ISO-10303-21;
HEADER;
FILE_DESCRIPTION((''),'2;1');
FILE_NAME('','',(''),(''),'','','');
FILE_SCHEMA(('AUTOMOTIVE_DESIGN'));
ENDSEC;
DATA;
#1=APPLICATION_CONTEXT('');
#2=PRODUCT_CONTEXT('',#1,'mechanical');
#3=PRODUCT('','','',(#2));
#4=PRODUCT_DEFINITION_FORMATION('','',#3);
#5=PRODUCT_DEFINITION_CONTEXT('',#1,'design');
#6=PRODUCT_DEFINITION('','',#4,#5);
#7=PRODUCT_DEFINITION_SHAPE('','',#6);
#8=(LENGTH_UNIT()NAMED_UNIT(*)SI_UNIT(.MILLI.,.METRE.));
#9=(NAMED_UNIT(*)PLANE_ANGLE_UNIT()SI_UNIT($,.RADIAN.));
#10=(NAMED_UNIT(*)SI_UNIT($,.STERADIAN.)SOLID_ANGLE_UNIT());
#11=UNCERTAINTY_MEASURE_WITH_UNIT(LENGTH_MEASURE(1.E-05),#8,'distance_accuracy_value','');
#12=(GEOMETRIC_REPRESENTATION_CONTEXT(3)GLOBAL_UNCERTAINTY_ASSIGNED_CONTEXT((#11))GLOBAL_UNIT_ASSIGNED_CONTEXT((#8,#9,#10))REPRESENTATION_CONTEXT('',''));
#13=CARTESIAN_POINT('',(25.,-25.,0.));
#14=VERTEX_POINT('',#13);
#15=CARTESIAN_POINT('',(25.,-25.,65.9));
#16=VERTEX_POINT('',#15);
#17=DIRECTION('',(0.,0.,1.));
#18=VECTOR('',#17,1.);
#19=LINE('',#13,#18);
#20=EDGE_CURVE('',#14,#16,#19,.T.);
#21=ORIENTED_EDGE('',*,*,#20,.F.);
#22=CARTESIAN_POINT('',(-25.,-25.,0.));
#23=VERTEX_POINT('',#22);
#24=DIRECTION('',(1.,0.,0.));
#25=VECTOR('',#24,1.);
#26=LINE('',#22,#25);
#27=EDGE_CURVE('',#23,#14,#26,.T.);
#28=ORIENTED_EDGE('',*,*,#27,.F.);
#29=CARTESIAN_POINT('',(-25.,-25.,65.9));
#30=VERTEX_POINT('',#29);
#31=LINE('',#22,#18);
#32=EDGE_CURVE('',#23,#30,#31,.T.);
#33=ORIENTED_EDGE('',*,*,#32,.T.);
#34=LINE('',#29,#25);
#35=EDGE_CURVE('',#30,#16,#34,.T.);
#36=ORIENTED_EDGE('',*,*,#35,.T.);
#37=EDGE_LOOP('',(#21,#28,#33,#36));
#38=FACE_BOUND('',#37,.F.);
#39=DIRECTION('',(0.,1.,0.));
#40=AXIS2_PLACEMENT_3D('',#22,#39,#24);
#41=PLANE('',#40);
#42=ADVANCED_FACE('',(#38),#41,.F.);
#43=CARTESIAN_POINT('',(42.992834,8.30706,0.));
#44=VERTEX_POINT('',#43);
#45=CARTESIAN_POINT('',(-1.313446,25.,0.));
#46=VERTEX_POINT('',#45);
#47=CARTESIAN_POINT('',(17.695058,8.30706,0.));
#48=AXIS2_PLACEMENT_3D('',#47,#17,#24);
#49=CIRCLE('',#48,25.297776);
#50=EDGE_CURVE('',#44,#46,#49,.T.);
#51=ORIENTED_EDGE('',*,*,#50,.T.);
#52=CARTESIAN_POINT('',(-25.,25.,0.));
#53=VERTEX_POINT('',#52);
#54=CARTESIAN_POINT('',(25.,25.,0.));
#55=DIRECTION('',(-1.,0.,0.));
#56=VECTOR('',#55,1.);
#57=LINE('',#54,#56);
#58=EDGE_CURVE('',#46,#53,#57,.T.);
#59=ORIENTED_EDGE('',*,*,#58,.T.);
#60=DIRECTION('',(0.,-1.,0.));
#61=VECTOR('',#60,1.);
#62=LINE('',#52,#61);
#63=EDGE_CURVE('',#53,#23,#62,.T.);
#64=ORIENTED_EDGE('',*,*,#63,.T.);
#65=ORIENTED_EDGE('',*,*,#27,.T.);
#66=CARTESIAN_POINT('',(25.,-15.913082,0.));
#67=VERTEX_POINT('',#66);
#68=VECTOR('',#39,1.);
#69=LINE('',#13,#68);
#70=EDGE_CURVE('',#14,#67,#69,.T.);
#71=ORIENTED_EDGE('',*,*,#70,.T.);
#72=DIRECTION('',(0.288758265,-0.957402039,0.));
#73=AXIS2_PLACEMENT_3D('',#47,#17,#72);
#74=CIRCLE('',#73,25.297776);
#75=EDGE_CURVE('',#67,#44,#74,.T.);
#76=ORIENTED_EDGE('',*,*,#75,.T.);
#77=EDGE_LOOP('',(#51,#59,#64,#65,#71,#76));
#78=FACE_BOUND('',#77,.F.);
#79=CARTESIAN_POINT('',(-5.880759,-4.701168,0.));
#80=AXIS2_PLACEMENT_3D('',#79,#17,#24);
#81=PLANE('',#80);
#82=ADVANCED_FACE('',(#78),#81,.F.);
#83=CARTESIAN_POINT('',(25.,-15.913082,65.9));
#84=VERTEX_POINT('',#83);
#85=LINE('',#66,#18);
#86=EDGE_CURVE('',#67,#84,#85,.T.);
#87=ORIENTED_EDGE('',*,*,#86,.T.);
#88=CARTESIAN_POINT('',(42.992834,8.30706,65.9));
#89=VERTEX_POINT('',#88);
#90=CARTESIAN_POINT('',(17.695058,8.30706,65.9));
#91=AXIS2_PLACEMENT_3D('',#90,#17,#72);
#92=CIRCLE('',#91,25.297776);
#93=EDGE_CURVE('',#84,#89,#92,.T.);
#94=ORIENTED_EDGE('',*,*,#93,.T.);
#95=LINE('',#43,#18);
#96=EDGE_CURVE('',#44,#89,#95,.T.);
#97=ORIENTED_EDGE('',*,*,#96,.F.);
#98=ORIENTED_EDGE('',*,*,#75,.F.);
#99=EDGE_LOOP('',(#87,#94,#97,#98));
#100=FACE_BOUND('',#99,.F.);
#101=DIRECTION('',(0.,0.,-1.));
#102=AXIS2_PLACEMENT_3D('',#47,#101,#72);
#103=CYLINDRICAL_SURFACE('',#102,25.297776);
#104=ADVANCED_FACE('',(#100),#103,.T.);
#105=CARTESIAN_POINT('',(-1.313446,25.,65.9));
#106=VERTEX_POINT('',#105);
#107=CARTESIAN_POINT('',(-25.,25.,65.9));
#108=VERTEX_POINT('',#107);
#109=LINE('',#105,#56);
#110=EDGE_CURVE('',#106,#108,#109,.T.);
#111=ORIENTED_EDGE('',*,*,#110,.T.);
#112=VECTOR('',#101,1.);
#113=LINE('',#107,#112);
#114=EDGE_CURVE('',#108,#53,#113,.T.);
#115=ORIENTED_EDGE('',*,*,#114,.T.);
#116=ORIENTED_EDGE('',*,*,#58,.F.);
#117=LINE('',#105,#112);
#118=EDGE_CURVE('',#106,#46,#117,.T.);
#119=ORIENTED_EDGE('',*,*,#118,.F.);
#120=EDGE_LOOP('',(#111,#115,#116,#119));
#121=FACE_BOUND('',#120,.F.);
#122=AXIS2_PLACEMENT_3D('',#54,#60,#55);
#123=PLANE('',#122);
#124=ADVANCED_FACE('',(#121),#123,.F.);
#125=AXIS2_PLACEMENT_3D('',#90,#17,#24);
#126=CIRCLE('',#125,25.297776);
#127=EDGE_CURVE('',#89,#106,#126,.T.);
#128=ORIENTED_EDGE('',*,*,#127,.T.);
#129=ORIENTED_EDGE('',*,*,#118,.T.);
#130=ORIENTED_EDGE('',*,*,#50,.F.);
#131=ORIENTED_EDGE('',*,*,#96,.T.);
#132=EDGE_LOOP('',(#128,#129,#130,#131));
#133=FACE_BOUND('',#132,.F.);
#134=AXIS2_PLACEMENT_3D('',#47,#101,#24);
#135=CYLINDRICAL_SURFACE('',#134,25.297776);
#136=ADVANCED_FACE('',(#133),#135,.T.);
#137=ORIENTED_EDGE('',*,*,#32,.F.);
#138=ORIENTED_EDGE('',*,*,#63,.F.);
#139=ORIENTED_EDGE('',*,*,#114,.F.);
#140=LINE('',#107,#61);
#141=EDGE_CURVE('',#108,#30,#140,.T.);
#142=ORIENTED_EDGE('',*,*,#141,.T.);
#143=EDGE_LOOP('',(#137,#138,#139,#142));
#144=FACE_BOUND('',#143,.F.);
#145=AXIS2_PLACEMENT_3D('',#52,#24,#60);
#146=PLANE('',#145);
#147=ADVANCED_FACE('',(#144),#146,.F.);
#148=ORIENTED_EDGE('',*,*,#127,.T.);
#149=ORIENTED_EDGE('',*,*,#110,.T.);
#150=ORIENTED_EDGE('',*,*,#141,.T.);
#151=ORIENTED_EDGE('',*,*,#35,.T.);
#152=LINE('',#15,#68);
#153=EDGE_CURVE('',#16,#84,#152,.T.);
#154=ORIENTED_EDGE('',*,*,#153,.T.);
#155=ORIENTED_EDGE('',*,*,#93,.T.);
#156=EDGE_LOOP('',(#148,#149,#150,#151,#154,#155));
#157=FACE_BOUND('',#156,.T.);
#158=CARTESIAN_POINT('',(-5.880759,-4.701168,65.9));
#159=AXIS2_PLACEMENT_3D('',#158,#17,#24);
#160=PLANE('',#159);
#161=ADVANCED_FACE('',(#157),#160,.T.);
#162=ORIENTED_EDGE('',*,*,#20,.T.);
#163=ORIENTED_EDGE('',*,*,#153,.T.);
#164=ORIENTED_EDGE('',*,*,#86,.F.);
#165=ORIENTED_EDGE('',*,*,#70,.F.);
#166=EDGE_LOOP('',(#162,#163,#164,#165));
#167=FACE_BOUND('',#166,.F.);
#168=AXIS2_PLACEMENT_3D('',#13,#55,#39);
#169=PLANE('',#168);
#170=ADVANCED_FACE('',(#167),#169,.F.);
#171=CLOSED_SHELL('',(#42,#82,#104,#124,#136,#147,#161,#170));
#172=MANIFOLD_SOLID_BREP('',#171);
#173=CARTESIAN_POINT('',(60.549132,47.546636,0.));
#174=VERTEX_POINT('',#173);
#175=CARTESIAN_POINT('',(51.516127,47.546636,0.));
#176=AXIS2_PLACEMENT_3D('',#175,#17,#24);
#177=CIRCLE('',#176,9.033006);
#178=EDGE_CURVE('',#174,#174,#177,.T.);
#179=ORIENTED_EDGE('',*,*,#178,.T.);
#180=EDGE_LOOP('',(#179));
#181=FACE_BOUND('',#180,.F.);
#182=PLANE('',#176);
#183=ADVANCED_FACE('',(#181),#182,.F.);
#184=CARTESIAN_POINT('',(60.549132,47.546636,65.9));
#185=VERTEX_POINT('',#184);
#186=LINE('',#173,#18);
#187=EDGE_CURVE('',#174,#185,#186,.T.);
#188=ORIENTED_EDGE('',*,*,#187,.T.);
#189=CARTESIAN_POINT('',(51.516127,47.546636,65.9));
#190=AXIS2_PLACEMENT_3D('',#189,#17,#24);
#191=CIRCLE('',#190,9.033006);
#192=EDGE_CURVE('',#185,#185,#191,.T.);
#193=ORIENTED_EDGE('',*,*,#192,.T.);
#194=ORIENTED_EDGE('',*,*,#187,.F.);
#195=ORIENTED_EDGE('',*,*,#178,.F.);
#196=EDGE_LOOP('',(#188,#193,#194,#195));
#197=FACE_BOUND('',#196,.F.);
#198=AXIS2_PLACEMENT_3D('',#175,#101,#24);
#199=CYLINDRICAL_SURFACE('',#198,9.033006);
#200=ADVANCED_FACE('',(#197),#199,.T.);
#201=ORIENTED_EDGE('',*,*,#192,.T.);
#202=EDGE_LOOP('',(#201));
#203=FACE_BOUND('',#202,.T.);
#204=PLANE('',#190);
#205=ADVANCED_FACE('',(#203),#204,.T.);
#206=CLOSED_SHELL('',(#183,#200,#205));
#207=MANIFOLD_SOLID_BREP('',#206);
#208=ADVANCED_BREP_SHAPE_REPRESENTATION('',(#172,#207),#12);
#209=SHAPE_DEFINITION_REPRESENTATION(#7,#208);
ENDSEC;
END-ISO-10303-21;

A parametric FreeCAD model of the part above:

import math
import FreeCAD as App
import Part
import Sketcher
from FreeCAD import Vector
Q = App.Units.Quantity

doc = App.newDocument("Part")
params = doc.addObject("Spreadsheet::Sheet", "Params")
for row, (alias, value) in enumerate([
    ("sketch1_width", "50 mm"),
    ("pad1_length", "50 mm"),
    ("sketch2_width", "50 mm"),
    ("pad2_length", "65.9 mm"),
    ("pad3_length", "65.9 mm"),
], start=1):
    params.set(f"A{row}", alias)
    params.set(f"B{row}", "=" + value)
    params.setAlias(f"B{row}", alias)

body = doc.addObject("PartDesign::Body", "Body")

sketch1 = body.newObject("Sketcher::SketchObject", "Sketch")
sketch1.AttachmentSupport = (doc.getObject("XY_Plane"), [""])
sketch1.MapMode = "FlatFace"
sketch1.addGeometry(Part.LineSegment(Vector(-25, 25, 0), Vector(-25, -25, 0)), False)
sketch1.addGeometry(Part.LineSegment(Vector(-25, -25, 0), Vector(25, -25, 0)), False)
sketch1.addGeometry(Part.LineSegment(Vector(25, -25, 0), Vector(25, 25, 0)), False)
sketch1.addGeometry(Part.LineSegment(Vector(25, 25, 0), Vector(-25, 25, 0)), False)
sketch1.addConstraint(Sketcher.Constraint("Coincident", 0, 2, 1, 1))
sketch1.addConstraint(Sketcher.Constraint("Coincident", 1, 2, 2, 1))
sketch1.addConstraint(Sketcher.Constraint("Coincident", 2, 2, 3, 1))
sketch1.addConstraint(Sketcher.Constraint("Coincident", 3, 2, 0, 1))
sketch1.addConstraint(Sketcher.Constraint("Vertical", 0))
sketch1.addConstraint(Sketcher.Constraint("Horizontal", 1))
sketch1.addConstraint(Sketcher.Constraint("Vertical", 2))
sketch1.addConstraint(Sketcher.Constraint("Horizontal", 3))
sketch1.addConstraint(Sketcher.Constraint("Symmetric", 0, 2, 2, 2, -1, 1))
sketch1.addConstraint(Sketcher.Constraint("Equal", 3, 0))
sketch1.addConstraint(Sketcher.Constraint("DistanceX", 1, 1, 1, 2, Q("50 mm")))
sketch1.setExpression("Constraints[10]", "Params.sketch1_width")
pad1 = body.newObject("PartDesign::Pad", "Pad")
pad1.Profile = sketch1
pad1.setExpression("Length", "Params.pad1_length")

sketch2 = body.newObject("Sketcher::SketchObject", "Sketch001")
sketch2.AttachmentSupport = (doc.getObject("XY_Plane"), [""])
sketch2.MapMode = "FlatFace"
sketch2.addGeometry(Part.LineSegment(Vector(-1.313446, 25, 0), Vector(-25, 25, 0)), False)
sketch2.addGeometry(Part.LineSegment(Vector(-25, 25, 0), Vector(-25, -25, 0)), False)
sketch2.addGeometry(Part.LineSegment(Vector(-25, -25, 0), Vector(25, -25, 0)), False)
sketch2.addGeometry(Part.LineSegment(Vector(25, -25, 0), Vector(25, -15.913082, 0)), False)
sketch2.addGeometry(Part.ArcOfCircle(Part.Circle(Vector(17.695058, 8.30706, 0), Vector(0, 0, 1), 25.297776), math.radians(-73.21637), math.radians(0)), False)
sketch2.addGeometry(Part.ArcOfCircle(Part.Circle(Vector(17.695058, 8.30706, 0), Vector(0, 0, 1), 25.297776), math.radians(0), math.radians(138.710956)), False)
sketch2.addConstraint(Sketcher.Constraint("Coincident", 0, 2, 1, 1))
sketch2.addConstraint(Sketcher.Constraint("Coincident", 1, 2, 2, 1))
sketch2.addConstraint(Sketcher.Constraint("Coincident", 2, 2, 3, 1))
sketch2.addConstraint(Sketcher.Constraint("Coincident", 3, 2, 4, 1))
sketch2.addConstraint(Sketcher.Constraint("Tangent", 4, 2, 5, 1))
sketch2.addConstraint(Sketcher.Constraint("Coincident", 5, 2, 0, 1))
sketch2.addConstraint(Sketcher.Constraint("Horizontal", 0))
sketch2.addConstraint(Sketcher.Constraint("Vertical", 1))
sketch2.addConstraint(Sketcher.Constraint("Horizontal", 2))
sketch2.addConstraint(Sketcher.Constraint("Vertical", 3))
sketch2.addConstraint(Sketcher.Constraint("Equal", 4, 5))
sketch2.addConstraint(Sketcher.Constraint("Symmetric", 0, 2, 2, 2, -1, 1))
sketch2.addConstraint(Sketcher.Constraint("Horizontal", 5, 3, 4, 2))
sketch2.addConstraint(Sketcher.Constraint("Equal", 2, 1))
sketch2.addConstraint(Sketcher.Constraint("DistanceX", 2, 1, 2, 2, Q("50 mm")))
sketch2.addConstraint(Sketcher.Constraint("Radius", 4, Q("25.297776 mm")))
sketch2.addConstraint(Sketcher.Constraint("DistanceY", 3, 1, 3, 2, Q("9.086918 mm")))
sketch2.addConstraint(Sketcher.Constraint("DistanceX", 0, 2, 0, 1, Q("23.686554 mm")))
sketch2.setExpression("Constraints[14]", "Params.sketch2_width")
pad2 = body.newObject("PartDesign::Pad", "Pad001")
pad2.Profile = sketch2
pad2.setExpression("Length", "Params.pad2_length")
body2 = doc.addObject("PartDesign::Body", "Body001")

sketch3 = body2.newObject("Sketcher::SketchObject", "Sketch002")
sketch3.AttachmentSupport = (doc.getObject("XY_Plane001"), [""])
sketch3.MapMode = "FlatFace"
sketch3.addGeometry(Part.Circle(Vector(51.516127, 47.546636, 0), Vector(0, 0, 1), 9.033006), False)
sketch3.addConstraint(Sketcher.Constraint("Diameter", 0, Q("18.066011 mm")))
sketch3.addConstraint(Sketcher.Constraint("DistanceX", -1, 1, 0, 3, Q("51.516127 mm")))
sketch3.addConstraint(Sketcher.Constraint("DistanceY", -1, 1, 0, 3, Q("47.546636 mm")))
pad3 = body2.newObject("PartDesign::Pad", "Pad002")
pad3.Profile = sketch3
pad3.setExpression("Length", "Params.pad3_length")

doc.recompute()
